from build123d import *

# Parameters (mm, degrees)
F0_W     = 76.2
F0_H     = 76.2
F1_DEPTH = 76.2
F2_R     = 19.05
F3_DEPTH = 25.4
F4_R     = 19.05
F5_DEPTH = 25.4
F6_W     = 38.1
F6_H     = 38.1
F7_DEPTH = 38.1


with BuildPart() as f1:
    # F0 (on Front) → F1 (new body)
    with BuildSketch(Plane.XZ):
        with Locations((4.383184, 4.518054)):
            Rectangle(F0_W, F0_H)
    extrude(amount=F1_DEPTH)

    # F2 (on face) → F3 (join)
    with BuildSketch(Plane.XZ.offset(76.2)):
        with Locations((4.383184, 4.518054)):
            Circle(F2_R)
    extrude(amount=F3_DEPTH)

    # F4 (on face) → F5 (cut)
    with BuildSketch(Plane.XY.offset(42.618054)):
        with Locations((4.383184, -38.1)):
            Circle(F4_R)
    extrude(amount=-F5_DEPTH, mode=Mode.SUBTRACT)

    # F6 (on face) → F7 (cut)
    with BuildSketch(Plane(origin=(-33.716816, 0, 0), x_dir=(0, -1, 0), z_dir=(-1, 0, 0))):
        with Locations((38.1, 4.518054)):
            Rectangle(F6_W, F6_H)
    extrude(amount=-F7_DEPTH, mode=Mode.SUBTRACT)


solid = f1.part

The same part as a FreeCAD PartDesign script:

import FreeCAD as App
import Part
import Sketcher
Q = App.Units.Quantity

doc = App.newDocument("Part")
body = doc.addObject("PartDesign::Body", "Body")

# Sketch on XZ plane
sketch1 = body.newObject("Sketcher::SketchObject", "Sketch")
sketch1.AttachmentSupport = (doc.getObject("XZ_Plane"), [""])
sketch1.MapMode = "FlatFace"
sketch1.addGeometry([
    Part.LineSegment(App.Vector(-34, 43, 0), App.Vector(-34, -34, 0)),
    Part.LineSegment(App.Vector(-34, -34, 0), App.Vector(42, -34, 0)),
    Part.LineSegment(App.Vector(42, -34, 0), App.Vector(42, 43, 0)),
    Part.LineSegment(App.Vector(42, 43, 0), App.Vector(-34, 43, 0)),
], False)
sketch1.addConstraint([
    Sketcher.Constraint("Coincident", 0, 2, 1, 1),
    Sketcher.Constraint("Coincident", 1, 2, 2, 1),
    Sketcher.Constraint("Coincident", 2, 2, 3, 1),
    Sketcher.Constraint("Coincident", 3, 2, 0, 1),
    Sketcher.Constraint("Vertical", 0),
    Sketcher.Constraint("Horizontal", 1),
    Sketcher.Constraint("Vertical", 2),
    Sketcher.Constraint("Horizontal", 3),
    Sketcher.Constraint("Equal", 3, 0),
    Sketcher.Constraint("DistanceX", 1, 1, 1, 2, Q("3 in")),
    Sketcher.Constraint("DistanceX", 0, 2, -1, 1, 33.716816),
    Sketcher.Constraint("DistanceY", 0, 2, -1, 1, 33.581946),
])
pad1 = body.newObject("PartDesign::Pad", "Pad")
pad1.Profile = sketch1
pad1.Length = Q("3 in")

# Sketch on XZ plane
sketch2 = body.newObject("Sketcher::SketchObject", "Sketch001")
sketch2.AttachmentSupport = (doc.getObject("XZ_Plane"), [""])
sketch2.MapMode = "FlatFace"
sketch2.AttachmentOffset = App.Placement(App.Vector(0, 0, 3 * 25.4), App.Rotation())
sketch2.addGeometry(Part.Circle(App.Vector(4, 5, 0), App.Vector(0, 0, 1), 19), False)
sketch2.addConstraint([
    Sketcher.Constraint("Diameter", 0, Q("1.5 in")),
    Sketcher.Constraint("DistanceX", -1, 1, 0, 3, 4.383184),
    Sketcher.Constraint("DistanceY", -1, 1, 0, 3, 4.518054),
])
pad2 = body.newObject("PartDesign::Pad", "Pad001")
pad2.Profile = sketch2
pad2.Length = Q("1 in")

# Sketch on XY plane
sketch3 = body.newObject("Sketcher::SketchObject", "Sketch002")
sketch3.AttachmentSupport = (doc.getObject("XY_Plane"), [""])
sketch3.MapMode = "FlatFace"
sketch3.AttachmentOffset = App.Placement(App.Vector(0, 0, 42.618054), App.Rotation())
sketch3.addGeometry(Part.Circle(App.Vector(4, -38, 0), App.Vector(0, 0, 1), 19), False)
sketch3.addConstraint([
    Sketcher.Constraint("Diameter", 0, Q("1.5 in")),
    Sketcher.Constraint("DistanceY", 0, 3, -1, 1, Q("1.5 in")),
    Sketcher.Constraint("DistanceX", -1, 1, 0, 3, 4.383184),
])
pocket1 = body.newObject("PartDesign::Pocket", "Pocket")
pocket1.Profile = sketch3
pocket1.Length = Q("1 in")

# Sketch on YZ plane
sketch4 = body.newObject("Sketcher::SketchObject", "Sketch003")
sketch4.AttachmentSupport = (doc.getObject("YZ_Plane"), [""])
sketch4.MapMode = "FlatFace"
sketch4.AttachmentOffset = App.Placement(App.Vector(0, 0, -33.716816), App.Rotation())
sketch4.addGeometry([
    Part.LineSegment(App.Vector(-19, 24, 0), App.Vector(-19, -15, 0)),
    Part.LineSegment(App.Vector(-19, -15, 0), App.Vector(-57, -15, 0)),
    Part.LineSegment(App.Vector(-57, -15, 0), App.Vector(-57, 24, 0)),
    Part.LineSegment(App.Vector(-57, 24, 0), App.Vector(-19, 24, 0)),
], False)
sketch4.addConstraint([
    Sketcher.Constraint("Coincident", 0, 2, 1, 1),
    Sketcher.Constraint("Coincident", 1, 2, 2, 1),
    Sketcher.Constraint("Coincident", 2, 2, 3, 1),
    Sketcher.Constraint("Coincident", 3, 2, 0, 1),
    Sketcher.Constraint("Vertical", 0),
    Sketcher.Constraint("Horizontal", 1),
    Sketcher.Constraint("Vertical", 2),
    Sketcher.Constraint("Horizontal", 3),
    Sketcher.Constraint("Equal", 3, 0),
    Sketcher.Constraint("DistanceX", 1, 2, 1, 1, Q("1.5 in")),
    Sketcher.Constraint("DistanceX", 0, 2, -1, 1, Q("0.75 in")),
    Sketcher.Constraint("DistanceY", 0, 2, -1, 1, 14.531946),
])
pocket2 = body.newObject("PartDesign::Pocket", "Pocket001")
pocket2.Profile = sketch4
pocket2.Length = Q("1.5 in")
pocket2.Reversed = True

doc.recompute()
